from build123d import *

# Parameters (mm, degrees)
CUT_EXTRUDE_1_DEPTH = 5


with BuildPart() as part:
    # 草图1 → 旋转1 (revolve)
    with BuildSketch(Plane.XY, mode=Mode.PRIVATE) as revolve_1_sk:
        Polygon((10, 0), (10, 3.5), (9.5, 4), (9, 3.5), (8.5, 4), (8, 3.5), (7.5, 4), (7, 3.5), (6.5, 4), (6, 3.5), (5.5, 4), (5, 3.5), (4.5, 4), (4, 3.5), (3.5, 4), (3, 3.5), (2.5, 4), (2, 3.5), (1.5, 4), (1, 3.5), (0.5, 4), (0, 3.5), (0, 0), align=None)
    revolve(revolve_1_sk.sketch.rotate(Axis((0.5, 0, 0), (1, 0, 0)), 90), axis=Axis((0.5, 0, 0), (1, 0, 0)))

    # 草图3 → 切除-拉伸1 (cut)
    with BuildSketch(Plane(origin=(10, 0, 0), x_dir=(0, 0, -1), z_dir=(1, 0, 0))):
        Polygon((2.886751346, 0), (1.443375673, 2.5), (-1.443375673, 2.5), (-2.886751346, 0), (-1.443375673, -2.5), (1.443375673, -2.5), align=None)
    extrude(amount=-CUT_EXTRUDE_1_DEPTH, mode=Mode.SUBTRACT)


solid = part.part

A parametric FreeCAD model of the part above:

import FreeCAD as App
import Part
import Sketcher
from FreeCAD import Vector
Q = App.Units.Quantity

doc = App.newDocument("Part")
body = doc.addObject("PartDesign::Body", "Body")

sketch1 = body.newObject("Sketcher::SketchObject", "Sketch")
sketch1.AttachmentSupport = (doc.getObject("XY_Plane"), [""])
sketch1.MapMode = "FlatFace"
sketch1.addGeometry(Part.LineSegment(Vector(10, 0, 0), Vector(10, 3.5, 0)), False)
sketch1.addGeometry(Part.LineSegment(Vector(10, 3.5, 0), Vector(9.5, 4, 0)), False)
sketch1.addGeometry(Part.LineSegment(Vector(9.5, 4, 0), Vector(9, 3.5, 0)), False)
sketch1.addGeometry(Part.LineSegment(Vector(9, 3.5, 0), Vector(8.5, 4, 0)), False)
sketch1.addGeometry(Part.LineSegment(Vector(8.5, 4, 0), Vector(8, 3.5, 0)), False)
sketch1.addGeometry(Part.LineSegment(Vector(8, 3.5, 0), Vector(7.5, 4, 0)), False)
sketch1.addGeometry(Part.LineSegment(Vector(7.5, 4, 0), Vector(7, 3.5, 0)), False)
sketch1.addGeometry(Part.LineSegment(Vector(7, 3.5, 0), Vector(6.5, 4, 0)), False)
sketch1.addGeometry(Part.LineSegment(Vector(6.5, 4, 0), Vector(6, 3.5, 0)), False)
sketch1.addGeometry(Part.LineSegment(Vector(6, 3.5, 0), Vector(5.5, 4, 0)), False)
sketch1.addGeometry(Part.LineSegment(Vector(5.5, 4, 0), Vector(5, 3.5, 0)), False)
sketch1.addGeometry(Part.LineSegment(Vector(5, 3.5, 0), Vector(4.5, 4, 0)), False)
sketch1.addGeometry(Part.LineSegment(Vector(4.5, 4, 0), Vector(4, 3.5, 0)), False)
sketch1.addGeometry(Part.LineSegment(Vector(4, 3.5, 0), Vector(3.5, 4, 0)), False)
sketch1.addGeometry(Part.LineSegment(Vector(3.5, 4, 0), Vector(3, 3.5, 0)), False)
sketch1.addGeometry(Part.LineSegment(Vector(3, 3.5, 0), Vector(2.5, 4, 0)), False)
sketch1.addGeometry(Part.LineSegment(Vector(2.5, 4, 0), Vector(2, 3.5, 0)), False)
sketch1.addGeometry(Part.LineSegment(Vector(2, 3.5, 0), Vector(1.5, 4, 0)), False)
sketch1.addGeometry(Part.LineSegment(Vector(1.5, 4, 0), Vector(1, 3.5, 0)), False)
sketch1.addGeometry(Part.LineSegment(Vector(1, 3.5, 0), Vector(0.5, 4, 0)), False)
sketch1.addGeometry(Part.LineSegment(Vector(0.5, 4, 0), Vector(0, 3.5, 0)), False)
sketch1.addGeometry(Part.LineSegment(Vector(0, 3.5, 0), Vector(0, 0, 0)), False)
sketch1.addGeometry(Part.LineSegment(Vector(0, 0, 0), Vector(10, 0, 0)), False)
sketch1.addConstraint(Sketcher.Constraint("Coincident", 0, 2, 1, 1))
sketch1.addConstraint(Sketcher.Constraint("Coincident", 1, 2, 2, 1))
sketch1.addConstraint(Sketcher.Constraint("Coincident", 2, 2, 3, 1))
sketch1.addConstraint(Sketcher.Constraint("Coincident", 3, 2, 4, 1))
sketch1.addConstraint(Sketcher.Constraint("Coincident", 4, 2, 5, 1))
sketch1.addConstraint(Sketcher.Constraint("Coincident", 5, 2, 6, 1))
sketch1.addConstraint(Sketcher.Constraint("Coincident", 6, 2, 7, 1))
sketch1.addConstraint(Sketcher.Constraint("Coincident", 7, 2, 8, 1))
sketch1.addConstraint(Sketcher.Constraint("Coincident", 8, 2, 9, 1))
sketch1.addConstraint(Sketcher.Constraint("Coincident", 9, 2, 10, 1))
sketch1.addConstraint(Sketcher.Constraint("Coincident", 10, 2, 11, 1))
sketch1.addConstraint(Sketcher.Constraint("Coincident", 11, 2, 12, 1))
sketch1.addConstraint(Sketcher.Constraint("Coincident", 12, 2, 13, 1))
sketch1.addConstraint(Sketcher.Constraint("Coincident", 13, 2, 14, 1))
sketch1.addConstraint(Sketcher.Constraint("Coincident", 14, 2, 15, 1))
sketch1.addConstraint(Sketcher.Constraint("Coincident", 15, 2, 16, 1))
sketch1.addConstraint(Sketcher.Constraint("Coincident", 16, 2, 17, 1))
sketch1.addConstraint(Sketcher.Constraint("Coincident", 17, 2, 18, 1))
sketch1.addConstraint(Sketcher.Constraint("Coincident", 18, 2, 19, 1))
sketch1.addConstraint(Sketcher.Constraint("Coincident", 19, 2, 20, 1))
sketch1.addConstraint(Sketcher.Constraint("Coincident", 20, 2, 21, 1))
sketch1.addConstraint(Sketcher.Constraint("Coincident", 21, 2, 22, 1))
sketch1.addConstraint(Sketcher.Constraint("Coincident", 22, 2, 0, 1))
sketch1.addConstraint(Sketcher.Constraint("Vertical", 0))
sketch1.addConstraint(Sketcher.Constraint("Vertical", 21))
sketch1.addConstraint(Sketcher.Constraint("Horizontal", 22))
sketch1.addConstraint(Sketcher.Constraint("Coincident", 21, 2, -1, 1))
sketch1.addConstraint(Sketcher.Constraint("Perpendicular", 1, 2))
sketch1.addConstraint(Sketcher.Constraint("Perpendicular", 2, 3))
sketch1.addConstraint(Sketcher.Constraint("Perpendicular", 3, 4))
sketch1.addConstraint(Sketcher.Constraint("Perpendicular", 4, 5))
sketch1.addConstraint(Sketcher.Constraint("Perpendicular", 5, 6))
sketch1.addConstraint(Sketcher.Constraint("Perpendicular", 6, 7))
sketch1.addConstraint(Sketcher.Constraint("Perpendicular", 7, 8))
sketch1.addConstraint(Sketcher.Constraint("Perpendicular", 8, 9))
sketch1.addConstraint(Sketcher.Constraint("Perpendicular", 9, 10))
sketch1.addConstraint(Sketcher.Constraint("Perpendicular", 10, 11))
sketch1.addConstraint(Sketcher.Constraint("Perpendicular", 11, 12))
sketch1.addConstraint(Sketcher.Constraint("Perpendicular", 12, 13))
sketch1.addConstraint(Sketcher.Constraint("Perpendicular", 13, 14))
sketch1.addConstraint(Sketcher.Constraint("Perpendicular", 14, 15))
sketch1.addConstraint(Sketcher.Constraint("Perpendicular", 15, 16))
sketch1.addConstraint(Sketcher.Constraint("Perpendicular", 16, 17))
sketch1.addConstraint(Sketcher.Constraint("Perpendicular", 17, 18))
sketch1.addConstraint(Sketcher.Constraint("Perpendicular", 18, 19))
sketch1.addConstraint(Sketcher.Constraint("Perpendicular", 19, 20))
sketch1.addConstraint(Sketcher.Constraint("Horizontal", 0, 2, 2, 2))
sketch1.addConstraint(Sketcher.Constraint("Horizontal", 1, 2, 3, 2))
sketch1.addConstraint(Sketcher.Constraint("Horizontal", 2, 2, 4, 2))
sketch1.addConstraint(Sketcher.Constraint("Horizontal", 3, 2, 5, 2))
sketch1.addConstraint(Sketcher.Constraint("Horizontal", 4, 2, 6, 2))
sketch1.addConstraint(Sketcher.Constraint("Horizontal", 5, 2, 7, 2))
sketch1.addConstraint(Sketcher.Constraint("Horizontal", 6, 2, 8, 2))
sketch1.addConstraint(Sketcher.Constraint("Horizontal", 7, 2, 9, 2))
sketch1.addConstraint(Sketcher.Constraint("Horizontal", 8, 2, 10, 2))
sketch1.addConstraint(Sketcher.Constraint("Horizontal", 9, 2, 11, 2))
sketch1.addConstraint(Sketcher.Constraint("Horizontal", 10, 2, 12, 2))
sketch1.addConstraint(Sketcher.Constraint("Horizontal", 11, 2, 13, 2))
sketch1.addConstraint(Sketcher.Constraint("Horizontal", 12, 2, 14, 2))
sketch1.addConstraint(Sketcher.Constraint("Horizontal", 13, 2, 15, 2))
sketch1.addConstraint(Sketcher.Constraint("Horizontal", 14, 2, 16, 2))
sketch1.addConstraint(Sketcher.Constraint("Horizontal", 15, 2, 17, 2))
sketch1.addConstraint(Sketcher.Constraint("Horizontal", 16, 2, 18, 2))
sketch1.addConstraint(Sketcher.Constraint("Horizontal", 17, 2, 19, 2))
sketch1.addConstraint(Sketcher.Constraint("Horizontal", 18, 2, 20, 2))
sketch1.addConstraint(Sketcher.Constraint("Equal", 1, 2))
sketch1.addConstraint(Sketcher.Constraint("DistanceX", 22, 1, 22, 2, Q("10 mm")))
sketch1.addConstraint(Sketcher.Constraint("DistanceY", 0, 1, 0, 2, Q("3.5 mm")))
revolution = body.newObject("PartDesign::Revolution", "Revolution")
revolution.Profile = sketch1
revolution.ReferenceAxis = (sketch1, ["H_Axis"])
revolution.Angle = 360

sketch2 = body.newObject("Sketcher::SketchObject", "Sketch001")
sketch2.AttachmentSupport = (doc.getObject("YZ_Plane"), [""])
sketch2.MapMode = "FlatFace"
sketch2.AttachmentOffset = App.Placement(Vector(0, 0, 10), App.Rotation())
sketch2.addGeometry(Part.LineSegment(Vector(0, -2.9, 0), Vector(2.5, -1.4, 0)), False)
sketch2.addGeometry(Part.LineSegment(Vector(2.5, -1.4, 0), Vector(2.5, 1.4, 0)), False)
sketch2.addGeometry(Part.LineSegment(Vector(2.5, 1.4, 0), Vector(0, 2.9, 0)), False)
sketch2.addGeometry(Part.LineSegment(Vector(0, 2.9, 0), Vector(-2.5, 1.4, 0)), False)
sketch2.addGeometry(Part.LineSegment(Vector(-2.5, 1.4, 0), Vector(-2.5, -1.4, 0)), False)
sketch2.addGeometry(Part.LineSegment(Vector(-2.5, -1.4, 0), Vector(0, -2.9, 0)), False)
sketch2.addConstraint(Sketcher.Constraint("Coincident", 0, 2, 1, 1))
sketch2.addConstraint(Sketcher.Constraint("Coincident", 1, 2, 2, 1))
sketch2.addConstraint(Sketcher.Constraint("Coincident", 2, 2, 3, 1))
sketch2.addConstraint(Sketcher.Constraint("Coincident", 3, 2, 4, 1))
sketch2.addConstraint(Sketcher.Constraint("Coincident", 4, 2, 5, 1))
sketch2.addConstraint(Sketcher.Constraint("Coincident", 5, 2, 0, 1))
sketch2.addConstraint(Sketcher.Constraint("Vertical", 1))
sketch2.addConstraint(Sketcher.Constraint("Vertical", 4))
sketch2.addConstraint(Sketcher.Constraint("Symmetric", 0, 2, 3, 2, -1, 1))
sketch2.addConstraint(Sketcher.Constraint("Symmetric", 2, 2, 5, 2, -1, 1))
sketch2.addConstraint(Sketcher.Constraint("PointOnObject", 2, 2, -2))
sketch2.addConstraint(Sketcher.Constraint("Parallel", 2, 5))
sketch2.addConstraint(Sketcher.Constraint("Horizontal", 1, 2, 3, 2))
sketch2.addConstraint(Sketcher.Constraint("Angle", 0, Q("30 deg")))
sketch2.addConstraint(Sketcher.Constraint("DistanceX", 3, 2, 1, 2, Q("5 mm")))
sketch2.addConstraint(Sketcher.Constraint("DistanceY", 1, 1, 1, 2, Q("2.886751 mm")))
pocket1 = body.newObject("PartDesign::Pocket", "Pocket")
pocket1.Profile = sketch2
pocket1.Length = 5

doc.recompute()
